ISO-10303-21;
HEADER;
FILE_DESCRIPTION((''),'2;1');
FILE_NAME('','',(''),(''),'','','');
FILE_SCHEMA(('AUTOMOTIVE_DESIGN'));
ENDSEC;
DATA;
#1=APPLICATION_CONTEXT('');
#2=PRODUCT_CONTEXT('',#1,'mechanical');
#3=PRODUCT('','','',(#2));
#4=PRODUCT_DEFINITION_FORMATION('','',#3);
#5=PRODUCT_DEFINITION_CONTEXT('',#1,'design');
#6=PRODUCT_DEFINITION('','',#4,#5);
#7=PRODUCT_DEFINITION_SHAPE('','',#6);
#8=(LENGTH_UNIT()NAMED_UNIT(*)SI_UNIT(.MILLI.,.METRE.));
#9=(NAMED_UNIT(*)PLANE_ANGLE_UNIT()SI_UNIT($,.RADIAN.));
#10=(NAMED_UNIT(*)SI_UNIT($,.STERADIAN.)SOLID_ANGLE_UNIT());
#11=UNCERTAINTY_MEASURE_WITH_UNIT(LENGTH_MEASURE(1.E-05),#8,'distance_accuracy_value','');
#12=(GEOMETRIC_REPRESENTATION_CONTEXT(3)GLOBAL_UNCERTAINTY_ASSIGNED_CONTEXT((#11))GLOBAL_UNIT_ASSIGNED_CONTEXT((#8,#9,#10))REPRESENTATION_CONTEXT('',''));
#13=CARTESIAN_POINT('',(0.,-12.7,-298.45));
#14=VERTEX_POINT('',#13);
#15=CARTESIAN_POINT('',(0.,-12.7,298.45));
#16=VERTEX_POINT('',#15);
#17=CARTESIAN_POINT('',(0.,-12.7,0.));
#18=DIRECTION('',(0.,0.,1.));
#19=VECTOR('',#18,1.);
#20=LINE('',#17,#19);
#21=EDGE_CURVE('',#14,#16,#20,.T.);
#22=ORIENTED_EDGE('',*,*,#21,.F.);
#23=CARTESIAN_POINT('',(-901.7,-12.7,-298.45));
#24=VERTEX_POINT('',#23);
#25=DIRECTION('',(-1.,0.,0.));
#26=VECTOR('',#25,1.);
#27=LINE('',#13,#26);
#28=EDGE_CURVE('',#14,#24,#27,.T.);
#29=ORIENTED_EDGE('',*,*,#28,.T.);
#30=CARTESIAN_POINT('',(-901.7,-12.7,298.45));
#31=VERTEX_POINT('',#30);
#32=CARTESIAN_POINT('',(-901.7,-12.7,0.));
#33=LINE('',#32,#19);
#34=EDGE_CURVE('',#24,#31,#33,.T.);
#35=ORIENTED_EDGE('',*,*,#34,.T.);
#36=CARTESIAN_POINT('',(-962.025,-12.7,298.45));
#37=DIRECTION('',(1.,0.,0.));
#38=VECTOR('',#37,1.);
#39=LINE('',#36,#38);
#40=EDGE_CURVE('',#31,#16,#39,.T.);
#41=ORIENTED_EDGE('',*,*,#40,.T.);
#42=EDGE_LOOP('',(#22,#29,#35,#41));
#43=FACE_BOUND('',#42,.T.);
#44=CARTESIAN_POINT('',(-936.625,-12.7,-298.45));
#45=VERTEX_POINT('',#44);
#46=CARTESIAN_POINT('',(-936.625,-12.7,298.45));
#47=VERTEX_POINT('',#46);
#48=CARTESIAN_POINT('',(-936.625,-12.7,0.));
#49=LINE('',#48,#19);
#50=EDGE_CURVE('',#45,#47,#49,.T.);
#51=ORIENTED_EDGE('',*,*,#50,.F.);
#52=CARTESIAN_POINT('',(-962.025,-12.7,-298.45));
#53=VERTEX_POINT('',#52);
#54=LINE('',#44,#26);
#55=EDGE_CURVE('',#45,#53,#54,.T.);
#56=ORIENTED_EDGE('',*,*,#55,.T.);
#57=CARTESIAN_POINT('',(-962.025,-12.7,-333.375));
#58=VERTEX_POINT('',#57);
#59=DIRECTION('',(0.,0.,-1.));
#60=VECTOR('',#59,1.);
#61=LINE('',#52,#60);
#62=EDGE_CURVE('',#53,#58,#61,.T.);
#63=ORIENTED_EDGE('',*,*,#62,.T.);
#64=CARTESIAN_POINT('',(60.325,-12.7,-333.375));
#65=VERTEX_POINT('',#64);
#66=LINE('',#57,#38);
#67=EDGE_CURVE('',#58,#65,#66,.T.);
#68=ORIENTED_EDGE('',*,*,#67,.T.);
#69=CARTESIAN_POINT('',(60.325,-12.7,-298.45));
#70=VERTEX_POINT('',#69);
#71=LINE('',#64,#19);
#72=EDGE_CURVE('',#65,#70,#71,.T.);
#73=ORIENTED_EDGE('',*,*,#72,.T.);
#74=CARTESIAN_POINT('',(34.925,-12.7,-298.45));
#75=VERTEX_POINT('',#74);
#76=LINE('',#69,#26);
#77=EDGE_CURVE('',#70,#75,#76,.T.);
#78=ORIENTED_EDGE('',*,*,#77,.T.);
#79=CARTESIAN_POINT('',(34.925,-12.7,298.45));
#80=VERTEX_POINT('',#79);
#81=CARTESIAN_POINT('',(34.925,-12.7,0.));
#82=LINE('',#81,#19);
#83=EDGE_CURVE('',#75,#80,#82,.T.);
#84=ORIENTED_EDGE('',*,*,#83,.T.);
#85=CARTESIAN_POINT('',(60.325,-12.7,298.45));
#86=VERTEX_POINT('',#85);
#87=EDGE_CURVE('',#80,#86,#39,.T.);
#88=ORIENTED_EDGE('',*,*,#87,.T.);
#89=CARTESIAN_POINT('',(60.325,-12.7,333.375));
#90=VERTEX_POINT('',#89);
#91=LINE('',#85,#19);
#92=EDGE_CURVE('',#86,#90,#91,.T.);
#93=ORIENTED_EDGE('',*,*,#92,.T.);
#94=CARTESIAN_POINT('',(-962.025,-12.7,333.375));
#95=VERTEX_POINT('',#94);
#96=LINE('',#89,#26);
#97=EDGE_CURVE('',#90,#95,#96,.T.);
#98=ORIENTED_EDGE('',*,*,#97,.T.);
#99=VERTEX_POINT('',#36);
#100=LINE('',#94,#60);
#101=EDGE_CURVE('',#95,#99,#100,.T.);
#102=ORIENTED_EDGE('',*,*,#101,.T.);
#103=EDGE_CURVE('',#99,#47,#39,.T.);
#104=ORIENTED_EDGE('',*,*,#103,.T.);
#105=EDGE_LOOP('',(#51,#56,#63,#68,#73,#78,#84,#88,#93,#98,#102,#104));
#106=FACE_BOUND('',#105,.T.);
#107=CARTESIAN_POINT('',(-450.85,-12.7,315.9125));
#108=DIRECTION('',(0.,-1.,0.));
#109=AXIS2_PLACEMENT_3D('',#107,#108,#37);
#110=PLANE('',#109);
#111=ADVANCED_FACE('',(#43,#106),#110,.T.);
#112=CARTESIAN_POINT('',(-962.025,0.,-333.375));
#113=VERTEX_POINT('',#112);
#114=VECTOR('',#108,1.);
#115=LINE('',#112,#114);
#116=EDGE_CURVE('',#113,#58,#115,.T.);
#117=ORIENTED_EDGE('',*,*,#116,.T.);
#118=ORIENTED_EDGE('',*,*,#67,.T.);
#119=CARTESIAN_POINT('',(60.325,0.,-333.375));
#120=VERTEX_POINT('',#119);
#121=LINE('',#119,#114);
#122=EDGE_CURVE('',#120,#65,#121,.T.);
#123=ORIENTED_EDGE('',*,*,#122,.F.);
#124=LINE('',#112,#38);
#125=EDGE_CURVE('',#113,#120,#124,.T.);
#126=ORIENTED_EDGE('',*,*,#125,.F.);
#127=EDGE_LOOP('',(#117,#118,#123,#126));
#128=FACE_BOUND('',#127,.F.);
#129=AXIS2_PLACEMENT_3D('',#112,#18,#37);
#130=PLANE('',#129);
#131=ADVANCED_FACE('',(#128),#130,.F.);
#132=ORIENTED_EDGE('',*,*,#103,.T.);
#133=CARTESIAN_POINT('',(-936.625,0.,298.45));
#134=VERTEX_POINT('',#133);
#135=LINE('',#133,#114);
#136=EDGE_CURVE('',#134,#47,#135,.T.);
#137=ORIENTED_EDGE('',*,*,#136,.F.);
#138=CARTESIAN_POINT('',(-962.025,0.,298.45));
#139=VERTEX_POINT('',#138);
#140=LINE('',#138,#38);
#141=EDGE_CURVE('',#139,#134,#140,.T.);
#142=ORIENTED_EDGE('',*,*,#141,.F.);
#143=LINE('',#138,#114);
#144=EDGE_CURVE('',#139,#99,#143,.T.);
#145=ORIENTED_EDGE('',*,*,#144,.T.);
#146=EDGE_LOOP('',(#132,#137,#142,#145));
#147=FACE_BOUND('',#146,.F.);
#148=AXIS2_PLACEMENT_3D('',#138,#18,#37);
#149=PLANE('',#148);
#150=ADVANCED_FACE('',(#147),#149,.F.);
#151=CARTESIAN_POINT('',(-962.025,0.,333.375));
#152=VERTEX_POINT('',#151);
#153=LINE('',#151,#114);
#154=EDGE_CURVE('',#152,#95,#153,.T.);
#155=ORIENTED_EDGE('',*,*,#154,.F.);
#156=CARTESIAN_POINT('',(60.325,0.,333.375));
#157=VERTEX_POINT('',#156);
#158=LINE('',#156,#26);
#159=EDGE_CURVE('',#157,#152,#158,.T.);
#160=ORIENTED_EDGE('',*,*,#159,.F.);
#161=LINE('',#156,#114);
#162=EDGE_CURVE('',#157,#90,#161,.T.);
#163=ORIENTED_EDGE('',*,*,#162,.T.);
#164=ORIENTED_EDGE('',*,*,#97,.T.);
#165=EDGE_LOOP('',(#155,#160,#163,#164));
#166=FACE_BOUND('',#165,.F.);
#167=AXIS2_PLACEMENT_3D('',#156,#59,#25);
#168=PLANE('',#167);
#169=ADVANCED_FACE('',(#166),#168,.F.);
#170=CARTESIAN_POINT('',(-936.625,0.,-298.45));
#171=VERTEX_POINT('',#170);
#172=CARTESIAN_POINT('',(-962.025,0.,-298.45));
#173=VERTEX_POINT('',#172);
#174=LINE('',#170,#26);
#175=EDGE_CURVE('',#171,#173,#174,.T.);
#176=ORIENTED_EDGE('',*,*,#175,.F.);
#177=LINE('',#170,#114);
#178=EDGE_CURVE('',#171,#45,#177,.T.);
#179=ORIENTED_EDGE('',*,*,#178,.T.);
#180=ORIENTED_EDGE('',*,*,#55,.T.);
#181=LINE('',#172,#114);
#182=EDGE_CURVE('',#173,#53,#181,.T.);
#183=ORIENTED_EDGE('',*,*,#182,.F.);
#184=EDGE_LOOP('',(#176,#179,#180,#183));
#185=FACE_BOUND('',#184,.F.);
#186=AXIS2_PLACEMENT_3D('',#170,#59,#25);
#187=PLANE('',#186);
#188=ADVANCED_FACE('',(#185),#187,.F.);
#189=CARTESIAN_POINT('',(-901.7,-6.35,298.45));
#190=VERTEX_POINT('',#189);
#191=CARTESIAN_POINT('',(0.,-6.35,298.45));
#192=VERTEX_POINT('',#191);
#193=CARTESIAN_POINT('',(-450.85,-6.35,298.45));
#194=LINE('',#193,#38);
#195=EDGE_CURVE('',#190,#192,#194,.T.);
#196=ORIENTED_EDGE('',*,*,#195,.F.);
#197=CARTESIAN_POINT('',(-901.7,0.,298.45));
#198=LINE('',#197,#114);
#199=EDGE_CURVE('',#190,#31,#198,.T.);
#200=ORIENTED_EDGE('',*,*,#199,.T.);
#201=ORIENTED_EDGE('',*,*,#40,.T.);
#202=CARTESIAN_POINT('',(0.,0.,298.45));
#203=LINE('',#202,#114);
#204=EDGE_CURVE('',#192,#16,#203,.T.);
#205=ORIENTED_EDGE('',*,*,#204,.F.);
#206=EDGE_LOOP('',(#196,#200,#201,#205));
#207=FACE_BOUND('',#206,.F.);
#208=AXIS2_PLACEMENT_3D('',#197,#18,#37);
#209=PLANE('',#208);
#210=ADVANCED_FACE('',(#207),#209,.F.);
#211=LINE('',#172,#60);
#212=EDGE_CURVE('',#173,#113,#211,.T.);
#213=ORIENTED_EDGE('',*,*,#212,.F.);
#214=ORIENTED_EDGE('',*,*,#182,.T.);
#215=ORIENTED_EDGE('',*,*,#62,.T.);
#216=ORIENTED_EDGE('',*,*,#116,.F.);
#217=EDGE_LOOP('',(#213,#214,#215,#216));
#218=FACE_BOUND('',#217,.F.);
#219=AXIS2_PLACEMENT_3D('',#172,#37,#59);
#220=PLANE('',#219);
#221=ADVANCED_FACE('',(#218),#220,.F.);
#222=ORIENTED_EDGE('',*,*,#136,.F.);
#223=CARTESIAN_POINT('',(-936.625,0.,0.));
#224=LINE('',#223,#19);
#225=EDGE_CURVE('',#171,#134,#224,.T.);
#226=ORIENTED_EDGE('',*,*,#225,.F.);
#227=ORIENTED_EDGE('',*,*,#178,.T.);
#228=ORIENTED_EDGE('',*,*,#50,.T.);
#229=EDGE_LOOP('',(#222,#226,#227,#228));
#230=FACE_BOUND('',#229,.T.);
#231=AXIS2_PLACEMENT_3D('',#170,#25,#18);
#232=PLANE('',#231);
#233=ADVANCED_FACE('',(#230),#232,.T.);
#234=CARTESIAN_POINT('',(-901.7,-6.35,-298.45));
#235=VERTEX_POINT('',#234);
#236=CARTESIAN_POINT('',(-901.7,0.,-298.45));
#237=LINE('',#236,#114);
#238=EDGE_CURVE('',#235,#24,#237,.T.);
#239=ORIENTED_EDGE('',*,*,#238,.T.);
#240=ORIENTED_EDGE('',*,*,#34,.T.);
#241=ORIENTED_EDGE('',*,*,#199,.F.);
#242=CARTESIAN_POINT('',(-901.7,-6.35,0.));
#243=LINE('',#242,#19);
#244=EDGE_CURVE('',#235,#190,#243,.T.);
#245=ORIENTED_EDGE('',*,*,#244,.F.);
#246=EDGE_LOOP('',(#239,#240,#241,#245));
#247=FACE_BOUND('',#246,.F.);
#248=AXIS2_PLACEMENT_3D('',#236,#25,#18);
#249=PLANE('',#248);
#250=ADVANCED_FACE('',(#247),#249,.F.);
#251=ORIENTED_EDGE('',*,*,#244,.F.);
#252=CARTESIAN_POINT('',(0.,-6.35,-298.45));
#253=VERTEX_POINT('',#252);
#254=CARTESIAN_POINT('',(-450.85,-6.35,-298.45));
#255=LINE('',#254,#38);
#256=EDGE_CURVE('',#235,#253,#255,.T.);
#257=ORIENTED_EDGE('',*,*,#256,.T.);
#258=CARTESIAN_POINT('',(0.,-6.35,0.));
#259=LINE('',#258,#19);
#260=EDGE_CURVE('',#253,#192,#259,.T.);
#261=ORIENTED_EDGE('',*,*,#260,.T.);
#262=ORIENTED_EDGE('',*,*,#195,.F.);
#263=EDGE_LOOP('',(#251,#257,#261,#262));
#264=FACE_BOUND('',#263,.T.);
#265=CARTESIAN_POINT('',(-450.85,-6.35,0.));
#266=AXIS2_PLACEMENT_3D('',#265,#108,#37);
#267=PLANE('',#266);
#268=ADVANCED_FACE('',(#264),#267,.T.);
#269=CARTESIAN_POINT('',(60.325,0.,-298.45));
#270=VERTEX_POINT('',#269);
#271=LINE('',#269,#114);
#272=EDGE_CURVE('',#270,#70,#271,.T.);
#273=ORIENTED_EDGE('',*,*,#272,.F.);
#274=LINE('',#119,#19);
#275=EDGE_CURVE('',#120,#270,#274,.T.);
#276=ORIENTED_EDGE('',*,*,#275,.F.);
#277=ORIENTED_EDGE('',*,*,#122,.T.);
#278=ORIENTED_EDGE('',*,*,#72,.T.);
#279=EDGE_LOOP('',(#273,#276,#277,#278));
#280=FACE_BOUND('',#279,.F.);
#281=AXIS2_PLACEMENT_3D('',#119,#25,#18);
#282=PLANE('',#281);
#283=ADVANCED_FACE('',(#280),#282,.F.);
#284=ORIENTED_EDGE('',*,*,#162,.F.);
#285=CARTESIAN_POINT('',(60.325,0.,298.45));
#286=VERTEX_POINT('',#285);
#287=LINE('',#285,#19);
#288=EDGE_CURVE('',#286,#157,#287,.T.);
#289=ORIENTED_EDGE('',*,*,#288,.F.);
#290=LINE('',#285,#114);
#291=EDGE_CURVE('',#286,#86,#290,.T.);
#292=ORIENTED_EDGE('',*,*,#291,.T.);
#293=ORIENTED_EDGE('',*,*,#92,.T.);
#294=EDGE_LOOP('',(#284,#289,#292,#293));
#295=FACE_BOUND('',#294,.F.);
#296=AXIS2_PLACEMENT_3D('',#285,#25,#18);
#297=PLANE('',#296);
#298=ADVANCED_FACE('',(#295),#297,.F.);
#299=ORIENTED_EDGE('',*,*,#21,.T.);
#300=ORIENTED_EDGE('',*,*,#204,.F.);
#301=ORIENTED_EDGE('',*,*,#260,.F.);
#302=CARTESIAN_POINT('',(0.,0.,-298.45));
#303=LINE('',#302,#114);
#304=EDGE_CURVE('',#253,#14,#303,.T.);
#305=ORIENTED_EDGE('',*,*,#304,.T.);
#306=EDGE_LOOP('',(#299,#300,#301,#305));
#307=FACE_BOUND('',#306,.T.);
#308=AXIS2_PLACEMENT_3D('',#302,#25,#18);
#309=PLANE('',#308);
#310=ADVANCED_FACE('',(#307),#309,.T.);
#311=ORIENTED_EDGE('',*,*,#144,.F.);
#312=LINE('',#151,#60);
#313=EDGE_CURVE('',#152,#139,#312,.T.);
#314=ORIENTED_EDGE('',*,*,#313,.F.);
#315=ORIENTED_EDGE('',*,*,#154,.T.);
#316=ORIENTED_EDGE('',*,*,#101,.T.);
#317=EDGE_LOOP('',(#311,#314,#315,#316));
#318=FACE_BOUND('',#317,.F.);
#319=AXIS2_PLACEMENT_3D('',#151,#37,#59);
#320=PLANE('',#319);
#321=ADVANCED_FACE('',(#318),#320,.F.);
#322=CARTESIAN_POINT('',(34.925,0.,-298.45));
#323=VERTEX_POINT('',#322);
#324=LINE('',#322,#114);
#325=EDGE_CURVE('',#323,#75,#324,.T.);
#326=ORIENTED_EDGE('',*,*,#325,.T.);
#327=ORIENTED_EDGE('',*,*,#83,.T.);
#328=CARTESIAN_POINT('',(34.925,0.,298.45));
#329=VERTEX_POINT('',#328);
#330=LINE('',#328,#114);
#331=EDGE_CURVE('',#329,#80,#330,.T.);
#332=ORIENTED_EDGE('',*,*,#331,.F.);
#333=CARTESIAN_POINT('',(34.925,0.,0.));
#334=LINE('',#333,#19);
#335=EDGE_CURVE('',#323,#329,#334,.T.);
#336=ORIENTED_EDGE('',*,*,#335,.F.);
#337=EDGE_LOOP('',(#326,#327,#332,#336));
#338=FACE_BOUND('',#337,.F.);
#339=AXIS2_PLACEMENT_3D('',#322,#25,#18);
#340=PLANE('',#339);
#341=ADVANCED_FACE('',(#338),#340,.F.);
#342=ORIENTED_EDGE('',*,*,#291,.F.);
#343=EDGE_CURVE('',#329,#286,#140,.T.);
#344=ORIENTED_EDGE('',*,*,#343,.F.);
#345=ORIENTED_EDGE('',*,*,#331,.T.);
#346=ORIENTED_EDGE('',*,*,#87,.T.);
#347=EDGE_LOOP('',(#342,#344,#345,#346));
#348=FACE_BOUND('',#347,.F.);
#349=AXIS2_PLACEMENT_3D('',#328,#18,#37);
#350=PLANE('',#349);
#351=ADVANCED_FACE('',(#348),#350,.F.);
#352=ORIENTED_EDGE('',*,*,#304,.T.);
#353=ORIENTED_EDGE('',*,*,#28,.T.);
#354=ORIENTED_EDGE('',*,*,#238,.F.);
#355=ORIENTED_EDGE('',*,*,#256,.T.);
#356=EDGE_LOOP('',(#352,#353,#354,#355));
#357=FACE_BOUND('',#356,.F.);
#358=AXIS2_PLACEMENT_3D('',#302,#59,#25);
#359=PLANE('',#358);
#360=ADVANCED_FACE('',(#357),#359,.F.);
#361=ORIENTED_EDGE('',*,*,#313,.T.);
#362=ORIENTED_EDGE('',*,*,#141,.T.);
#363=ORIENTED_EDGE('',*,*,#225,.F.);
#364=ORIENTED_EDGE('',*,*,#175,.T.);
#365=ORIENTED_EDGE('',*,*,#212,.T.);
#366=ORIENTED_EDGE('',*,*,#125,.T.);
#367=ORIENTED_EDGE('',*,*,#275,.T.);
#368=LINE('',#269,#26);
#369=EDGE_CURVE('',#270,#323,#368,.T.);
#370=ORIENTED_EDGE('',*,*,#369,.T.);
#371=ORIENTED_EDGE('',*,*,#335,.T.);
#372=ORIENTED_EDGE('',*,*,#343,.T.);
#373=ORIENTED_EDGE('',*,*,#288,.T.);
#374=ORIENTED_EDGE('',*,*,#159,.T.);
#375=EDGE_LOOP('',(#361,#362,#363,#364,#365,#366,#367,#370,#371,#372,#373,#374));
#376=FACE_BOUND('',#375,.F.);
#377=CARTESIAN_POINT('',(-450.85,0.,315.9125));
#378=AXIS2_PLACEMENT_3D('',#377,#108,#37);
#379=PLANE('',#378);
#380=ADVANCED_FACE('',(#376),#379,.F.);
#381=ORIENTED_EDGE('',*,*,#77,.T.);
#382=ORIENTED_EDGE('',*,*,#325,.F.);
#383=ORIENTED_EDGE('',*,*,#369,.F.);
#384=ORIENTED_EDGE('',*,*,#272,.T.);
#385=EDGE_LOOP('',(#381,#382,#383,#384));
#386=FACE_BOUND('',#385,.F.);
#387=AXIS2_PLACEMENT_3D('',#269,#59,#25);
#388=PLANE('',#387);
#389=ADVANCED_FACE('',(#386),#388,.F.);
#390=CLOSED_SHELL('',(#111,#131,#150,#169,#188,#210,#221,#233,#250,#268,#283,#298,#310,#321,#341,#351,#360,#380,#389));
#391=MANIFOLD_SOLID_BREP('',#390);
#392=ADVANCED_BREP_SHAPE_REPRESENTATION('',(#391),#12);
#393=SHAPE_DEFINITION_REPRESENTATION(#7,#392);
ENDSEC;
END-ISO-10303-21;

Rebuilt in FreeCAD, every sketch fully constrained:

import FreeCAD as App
import Part
import Sketcher
Q = App.Units.Quantity


def add_polygon(sketch, points):
    """Adds a closed chain of lines whose ends are joined by coincident constraints."""
    first, n = sketch.GeometryCount, len(points)
    for a, b in zip(points, points[1:] + points[:1]):
        sketch.addGeometry(Part.LineSegment(App.Vector(*a, 0), App.Vector(*b, 0)), False)
    for i in range(n):
        sketch.addConstraint(Sketcher.Constraint("Coincident", first + i, 2, first + (i + 1) % n, 1))

doc = App.newDocument("Part")
params = doc.addObject("Spreadsheet::Sheet", "Params")
for row, (alias, value) in enumerate([
    ("sketch1_width", "35.5 in"),
    ("sketch1_height", "23.5 in"),
    ("pad1_length", "0.25 in"),
    ("sketch2_width", "1 in"),
    ("sketch2_width2", "35.5 in"),
    ("sketch2_height", "23.5 in"),
    ("sketch2_width3", "40.25 in"),
    ("sketch2_height2", "1.375 in"),
    ("pad2_length", "0.5 in"),
], start=1):
    params.set(f"A{row}", alias)
    params.set(f"B{row}", "=" + value)
    params.setAlias(f"B{row}", alias)

body = doc.addObject("PartDesign::Body", "Body")

# Sketch on XZ plane
sketch1 = body.newObject("Sketcher::SketchObject", "Sketch")
sketch1.AttachmentSupport = (doc.getObject("XZ_Plane"), [""])
sketch1.MapMode = "FlatFace"
add_polygon(sketch1, [(-901.7, 298.45), (-901.7, -298.45), (0, -298.45), (0, 298.45)])  # lines 0-3
sketch1.addConstraint(Sketcher.Constraint("Vertical", 0))
sketch1.addConstraint(Sketcher.Constraint("Horizontal", 1))
sketch1.addConstraint(Sketcher.Constraint("Vertical", 2))
sketch1.addConstraint(Sketcher.Constraint("Horizontal", 3))
sketch1.addConstraint(Sketcher.Constraint("Symmetric", 1, 2, 2, 2, -1, 1))
sketch1.addConstraint(Sketcher.Constraint("DistanceX", 1, 1, 1, 2, Q("35.5 in")))
sketch1.addConstraint(Sketcher.Constraint("DistanceY", 0, 2, 0, 1, Q("23.5 in")))
sketch1.setExpression("Constraints[9]", "Params.sketch1_width")
sketch1.setExpression("Constraints[10]", "Params.sketch1_height")
pad1 = body.newObject("PartDesign::Pad", "Pad")
pad1.Profile = sketch1
pad1.setExpression("Length", "Params.pad1_length")

# Sketch on XZ plane
sketch2 = body.newObject("Sketcher::SketchObject", "Sketch001")
sketch2.AttachmentSupport = (doc.getObject("XZ_Plane"), [""])
sketch2.MapMode = "FlatFace"
add_polygon(sketch2, [(60.325, 298.45), (60.325, 333.375), (-962.025, 333.375), (-962.025, 298.45), (-936.625, 298.45), (-936.625, -298.45), (-962.025, -298.45), (-962.025, -333.375), (60.325, -333.375), (60.325, -298.45), (34.925, -298.45), (34.925, 298.45)])  # lines 0-11
add_polygon(sketch2, [(-901.7, -298.45), (-901.7, 298.45), (0, 298.45), (0, -298.45)])  # lines 12-15
sketch2.addConstraint(Sketcher.Constraint("Vertical", 0))
sketch2.addConstraint(Sketcher.Constraint("Horizontal", 1))
sketch2.addConstraint(Sketcher.Constraint("Vertical", 2))
sketch2.addConstraint(Sketcher.Constraint("Horizontal", 3))
sketch2.addConstraint(Sketcher.Constraint("Vertical", 4))
sketch2.addConstraint(Sketcher.Constraint("Horizontal", 5))
sketch2.addConstraint(Sketcher.Constraint("Vertical", 6))
sketch2.addConstraint(Sketcher.Constraint("Horizontal", 7))
sketch2.addConstraint(Sketcher.Constraint("Vertical", 8))
sketch2.addConstraint(Sketcher.Constraint("Horizontal", 9))
sketch2.addConstraint(Sketcher.Constraint("Vertical", 10))
sketch2.addConstraint(Sketcher.Constraint("Horizontal", 11))
sketch2.addConstraint(Sketcher.Constraint("Vertical", 12))
sketch2.addConstraint(Sketcher.Constraint("Horizontal", 13))
sketch2.addConstraint(Sketcher.Constraint("Vertical", 14))
sketch2.addConstraint(Sketcher.Constraint("Horizontal", 15))
sketch2.addConstraint(Sketcher.Constraint("Symmetric", 13, 2, 14, 2, -1, 1))
sketch2.addConstraint(Sketcher.Constraint("Symmetric", 2, 2, 5, 2, -1))
sketch2.addConstraint(Sketcher.Constraint("Symmetric", 0, 2, 7, 2, -1))
sketch2.addConstraint(Sketcher.Constraint("Horizontal", 5, 2, 8, 2))
sketch2.addConstraint(Sketcher.Constraint("Horizontal", 3, 2, 10, 2))
sketch2.addConstraint(Sketcher.Constraint("Horizontal", 11, 2, 12, 2))
sketch2.addConstraint(Sketcher.Constraint("Equal", 5, 9))
sketch2.addConstraint(Sketcher.Constraint("DistanceX", 3, 1, 3, 2, Q("1 in")))
sketch2.addConstraint(Sketcher.Constraint("DistanceX", 13, 1, 13, 2, Q("35.5 in")))
sketch2.addConstraint(Sketcher.Constraint("DistanceY", 4, 2, 4, 1, Q("23.5 in")))
sketch2.addConstraint(Sketcher.Constraint("DistanceX", 1, 2, 1, 1, Q("40.25 in")))
sketch2.addConstraint(Sketcher.Constraint("DistanceY", 0, 1, 0, 2, Q("1.375 in")))
sketch2.addConstraint(Sketcher.Constraint("DistanceX", -1, 1, 0, 2, Q("2.375 in")))
sketch2.setExpression("Constraints[39]", "Params.sketch2_width")
sketch2.setExpression("Constraints[40]", "Params.sketch2_width2")
sketch2.setExpression("Constraints[41]", "Params.sketch2_height")
sketch2.setExpression("Constraints[42]", "Params.sketch2_width3")
sketch2.setExpression("Constraints[43]", "Params.sketch2_height2")
pad2 = body.newObject("PartDesign::Pad", "Pad001")
pad2.Profile = sketch2
pad2.setExpression("Length", "Params.pad2_length")

doc.recompute()
